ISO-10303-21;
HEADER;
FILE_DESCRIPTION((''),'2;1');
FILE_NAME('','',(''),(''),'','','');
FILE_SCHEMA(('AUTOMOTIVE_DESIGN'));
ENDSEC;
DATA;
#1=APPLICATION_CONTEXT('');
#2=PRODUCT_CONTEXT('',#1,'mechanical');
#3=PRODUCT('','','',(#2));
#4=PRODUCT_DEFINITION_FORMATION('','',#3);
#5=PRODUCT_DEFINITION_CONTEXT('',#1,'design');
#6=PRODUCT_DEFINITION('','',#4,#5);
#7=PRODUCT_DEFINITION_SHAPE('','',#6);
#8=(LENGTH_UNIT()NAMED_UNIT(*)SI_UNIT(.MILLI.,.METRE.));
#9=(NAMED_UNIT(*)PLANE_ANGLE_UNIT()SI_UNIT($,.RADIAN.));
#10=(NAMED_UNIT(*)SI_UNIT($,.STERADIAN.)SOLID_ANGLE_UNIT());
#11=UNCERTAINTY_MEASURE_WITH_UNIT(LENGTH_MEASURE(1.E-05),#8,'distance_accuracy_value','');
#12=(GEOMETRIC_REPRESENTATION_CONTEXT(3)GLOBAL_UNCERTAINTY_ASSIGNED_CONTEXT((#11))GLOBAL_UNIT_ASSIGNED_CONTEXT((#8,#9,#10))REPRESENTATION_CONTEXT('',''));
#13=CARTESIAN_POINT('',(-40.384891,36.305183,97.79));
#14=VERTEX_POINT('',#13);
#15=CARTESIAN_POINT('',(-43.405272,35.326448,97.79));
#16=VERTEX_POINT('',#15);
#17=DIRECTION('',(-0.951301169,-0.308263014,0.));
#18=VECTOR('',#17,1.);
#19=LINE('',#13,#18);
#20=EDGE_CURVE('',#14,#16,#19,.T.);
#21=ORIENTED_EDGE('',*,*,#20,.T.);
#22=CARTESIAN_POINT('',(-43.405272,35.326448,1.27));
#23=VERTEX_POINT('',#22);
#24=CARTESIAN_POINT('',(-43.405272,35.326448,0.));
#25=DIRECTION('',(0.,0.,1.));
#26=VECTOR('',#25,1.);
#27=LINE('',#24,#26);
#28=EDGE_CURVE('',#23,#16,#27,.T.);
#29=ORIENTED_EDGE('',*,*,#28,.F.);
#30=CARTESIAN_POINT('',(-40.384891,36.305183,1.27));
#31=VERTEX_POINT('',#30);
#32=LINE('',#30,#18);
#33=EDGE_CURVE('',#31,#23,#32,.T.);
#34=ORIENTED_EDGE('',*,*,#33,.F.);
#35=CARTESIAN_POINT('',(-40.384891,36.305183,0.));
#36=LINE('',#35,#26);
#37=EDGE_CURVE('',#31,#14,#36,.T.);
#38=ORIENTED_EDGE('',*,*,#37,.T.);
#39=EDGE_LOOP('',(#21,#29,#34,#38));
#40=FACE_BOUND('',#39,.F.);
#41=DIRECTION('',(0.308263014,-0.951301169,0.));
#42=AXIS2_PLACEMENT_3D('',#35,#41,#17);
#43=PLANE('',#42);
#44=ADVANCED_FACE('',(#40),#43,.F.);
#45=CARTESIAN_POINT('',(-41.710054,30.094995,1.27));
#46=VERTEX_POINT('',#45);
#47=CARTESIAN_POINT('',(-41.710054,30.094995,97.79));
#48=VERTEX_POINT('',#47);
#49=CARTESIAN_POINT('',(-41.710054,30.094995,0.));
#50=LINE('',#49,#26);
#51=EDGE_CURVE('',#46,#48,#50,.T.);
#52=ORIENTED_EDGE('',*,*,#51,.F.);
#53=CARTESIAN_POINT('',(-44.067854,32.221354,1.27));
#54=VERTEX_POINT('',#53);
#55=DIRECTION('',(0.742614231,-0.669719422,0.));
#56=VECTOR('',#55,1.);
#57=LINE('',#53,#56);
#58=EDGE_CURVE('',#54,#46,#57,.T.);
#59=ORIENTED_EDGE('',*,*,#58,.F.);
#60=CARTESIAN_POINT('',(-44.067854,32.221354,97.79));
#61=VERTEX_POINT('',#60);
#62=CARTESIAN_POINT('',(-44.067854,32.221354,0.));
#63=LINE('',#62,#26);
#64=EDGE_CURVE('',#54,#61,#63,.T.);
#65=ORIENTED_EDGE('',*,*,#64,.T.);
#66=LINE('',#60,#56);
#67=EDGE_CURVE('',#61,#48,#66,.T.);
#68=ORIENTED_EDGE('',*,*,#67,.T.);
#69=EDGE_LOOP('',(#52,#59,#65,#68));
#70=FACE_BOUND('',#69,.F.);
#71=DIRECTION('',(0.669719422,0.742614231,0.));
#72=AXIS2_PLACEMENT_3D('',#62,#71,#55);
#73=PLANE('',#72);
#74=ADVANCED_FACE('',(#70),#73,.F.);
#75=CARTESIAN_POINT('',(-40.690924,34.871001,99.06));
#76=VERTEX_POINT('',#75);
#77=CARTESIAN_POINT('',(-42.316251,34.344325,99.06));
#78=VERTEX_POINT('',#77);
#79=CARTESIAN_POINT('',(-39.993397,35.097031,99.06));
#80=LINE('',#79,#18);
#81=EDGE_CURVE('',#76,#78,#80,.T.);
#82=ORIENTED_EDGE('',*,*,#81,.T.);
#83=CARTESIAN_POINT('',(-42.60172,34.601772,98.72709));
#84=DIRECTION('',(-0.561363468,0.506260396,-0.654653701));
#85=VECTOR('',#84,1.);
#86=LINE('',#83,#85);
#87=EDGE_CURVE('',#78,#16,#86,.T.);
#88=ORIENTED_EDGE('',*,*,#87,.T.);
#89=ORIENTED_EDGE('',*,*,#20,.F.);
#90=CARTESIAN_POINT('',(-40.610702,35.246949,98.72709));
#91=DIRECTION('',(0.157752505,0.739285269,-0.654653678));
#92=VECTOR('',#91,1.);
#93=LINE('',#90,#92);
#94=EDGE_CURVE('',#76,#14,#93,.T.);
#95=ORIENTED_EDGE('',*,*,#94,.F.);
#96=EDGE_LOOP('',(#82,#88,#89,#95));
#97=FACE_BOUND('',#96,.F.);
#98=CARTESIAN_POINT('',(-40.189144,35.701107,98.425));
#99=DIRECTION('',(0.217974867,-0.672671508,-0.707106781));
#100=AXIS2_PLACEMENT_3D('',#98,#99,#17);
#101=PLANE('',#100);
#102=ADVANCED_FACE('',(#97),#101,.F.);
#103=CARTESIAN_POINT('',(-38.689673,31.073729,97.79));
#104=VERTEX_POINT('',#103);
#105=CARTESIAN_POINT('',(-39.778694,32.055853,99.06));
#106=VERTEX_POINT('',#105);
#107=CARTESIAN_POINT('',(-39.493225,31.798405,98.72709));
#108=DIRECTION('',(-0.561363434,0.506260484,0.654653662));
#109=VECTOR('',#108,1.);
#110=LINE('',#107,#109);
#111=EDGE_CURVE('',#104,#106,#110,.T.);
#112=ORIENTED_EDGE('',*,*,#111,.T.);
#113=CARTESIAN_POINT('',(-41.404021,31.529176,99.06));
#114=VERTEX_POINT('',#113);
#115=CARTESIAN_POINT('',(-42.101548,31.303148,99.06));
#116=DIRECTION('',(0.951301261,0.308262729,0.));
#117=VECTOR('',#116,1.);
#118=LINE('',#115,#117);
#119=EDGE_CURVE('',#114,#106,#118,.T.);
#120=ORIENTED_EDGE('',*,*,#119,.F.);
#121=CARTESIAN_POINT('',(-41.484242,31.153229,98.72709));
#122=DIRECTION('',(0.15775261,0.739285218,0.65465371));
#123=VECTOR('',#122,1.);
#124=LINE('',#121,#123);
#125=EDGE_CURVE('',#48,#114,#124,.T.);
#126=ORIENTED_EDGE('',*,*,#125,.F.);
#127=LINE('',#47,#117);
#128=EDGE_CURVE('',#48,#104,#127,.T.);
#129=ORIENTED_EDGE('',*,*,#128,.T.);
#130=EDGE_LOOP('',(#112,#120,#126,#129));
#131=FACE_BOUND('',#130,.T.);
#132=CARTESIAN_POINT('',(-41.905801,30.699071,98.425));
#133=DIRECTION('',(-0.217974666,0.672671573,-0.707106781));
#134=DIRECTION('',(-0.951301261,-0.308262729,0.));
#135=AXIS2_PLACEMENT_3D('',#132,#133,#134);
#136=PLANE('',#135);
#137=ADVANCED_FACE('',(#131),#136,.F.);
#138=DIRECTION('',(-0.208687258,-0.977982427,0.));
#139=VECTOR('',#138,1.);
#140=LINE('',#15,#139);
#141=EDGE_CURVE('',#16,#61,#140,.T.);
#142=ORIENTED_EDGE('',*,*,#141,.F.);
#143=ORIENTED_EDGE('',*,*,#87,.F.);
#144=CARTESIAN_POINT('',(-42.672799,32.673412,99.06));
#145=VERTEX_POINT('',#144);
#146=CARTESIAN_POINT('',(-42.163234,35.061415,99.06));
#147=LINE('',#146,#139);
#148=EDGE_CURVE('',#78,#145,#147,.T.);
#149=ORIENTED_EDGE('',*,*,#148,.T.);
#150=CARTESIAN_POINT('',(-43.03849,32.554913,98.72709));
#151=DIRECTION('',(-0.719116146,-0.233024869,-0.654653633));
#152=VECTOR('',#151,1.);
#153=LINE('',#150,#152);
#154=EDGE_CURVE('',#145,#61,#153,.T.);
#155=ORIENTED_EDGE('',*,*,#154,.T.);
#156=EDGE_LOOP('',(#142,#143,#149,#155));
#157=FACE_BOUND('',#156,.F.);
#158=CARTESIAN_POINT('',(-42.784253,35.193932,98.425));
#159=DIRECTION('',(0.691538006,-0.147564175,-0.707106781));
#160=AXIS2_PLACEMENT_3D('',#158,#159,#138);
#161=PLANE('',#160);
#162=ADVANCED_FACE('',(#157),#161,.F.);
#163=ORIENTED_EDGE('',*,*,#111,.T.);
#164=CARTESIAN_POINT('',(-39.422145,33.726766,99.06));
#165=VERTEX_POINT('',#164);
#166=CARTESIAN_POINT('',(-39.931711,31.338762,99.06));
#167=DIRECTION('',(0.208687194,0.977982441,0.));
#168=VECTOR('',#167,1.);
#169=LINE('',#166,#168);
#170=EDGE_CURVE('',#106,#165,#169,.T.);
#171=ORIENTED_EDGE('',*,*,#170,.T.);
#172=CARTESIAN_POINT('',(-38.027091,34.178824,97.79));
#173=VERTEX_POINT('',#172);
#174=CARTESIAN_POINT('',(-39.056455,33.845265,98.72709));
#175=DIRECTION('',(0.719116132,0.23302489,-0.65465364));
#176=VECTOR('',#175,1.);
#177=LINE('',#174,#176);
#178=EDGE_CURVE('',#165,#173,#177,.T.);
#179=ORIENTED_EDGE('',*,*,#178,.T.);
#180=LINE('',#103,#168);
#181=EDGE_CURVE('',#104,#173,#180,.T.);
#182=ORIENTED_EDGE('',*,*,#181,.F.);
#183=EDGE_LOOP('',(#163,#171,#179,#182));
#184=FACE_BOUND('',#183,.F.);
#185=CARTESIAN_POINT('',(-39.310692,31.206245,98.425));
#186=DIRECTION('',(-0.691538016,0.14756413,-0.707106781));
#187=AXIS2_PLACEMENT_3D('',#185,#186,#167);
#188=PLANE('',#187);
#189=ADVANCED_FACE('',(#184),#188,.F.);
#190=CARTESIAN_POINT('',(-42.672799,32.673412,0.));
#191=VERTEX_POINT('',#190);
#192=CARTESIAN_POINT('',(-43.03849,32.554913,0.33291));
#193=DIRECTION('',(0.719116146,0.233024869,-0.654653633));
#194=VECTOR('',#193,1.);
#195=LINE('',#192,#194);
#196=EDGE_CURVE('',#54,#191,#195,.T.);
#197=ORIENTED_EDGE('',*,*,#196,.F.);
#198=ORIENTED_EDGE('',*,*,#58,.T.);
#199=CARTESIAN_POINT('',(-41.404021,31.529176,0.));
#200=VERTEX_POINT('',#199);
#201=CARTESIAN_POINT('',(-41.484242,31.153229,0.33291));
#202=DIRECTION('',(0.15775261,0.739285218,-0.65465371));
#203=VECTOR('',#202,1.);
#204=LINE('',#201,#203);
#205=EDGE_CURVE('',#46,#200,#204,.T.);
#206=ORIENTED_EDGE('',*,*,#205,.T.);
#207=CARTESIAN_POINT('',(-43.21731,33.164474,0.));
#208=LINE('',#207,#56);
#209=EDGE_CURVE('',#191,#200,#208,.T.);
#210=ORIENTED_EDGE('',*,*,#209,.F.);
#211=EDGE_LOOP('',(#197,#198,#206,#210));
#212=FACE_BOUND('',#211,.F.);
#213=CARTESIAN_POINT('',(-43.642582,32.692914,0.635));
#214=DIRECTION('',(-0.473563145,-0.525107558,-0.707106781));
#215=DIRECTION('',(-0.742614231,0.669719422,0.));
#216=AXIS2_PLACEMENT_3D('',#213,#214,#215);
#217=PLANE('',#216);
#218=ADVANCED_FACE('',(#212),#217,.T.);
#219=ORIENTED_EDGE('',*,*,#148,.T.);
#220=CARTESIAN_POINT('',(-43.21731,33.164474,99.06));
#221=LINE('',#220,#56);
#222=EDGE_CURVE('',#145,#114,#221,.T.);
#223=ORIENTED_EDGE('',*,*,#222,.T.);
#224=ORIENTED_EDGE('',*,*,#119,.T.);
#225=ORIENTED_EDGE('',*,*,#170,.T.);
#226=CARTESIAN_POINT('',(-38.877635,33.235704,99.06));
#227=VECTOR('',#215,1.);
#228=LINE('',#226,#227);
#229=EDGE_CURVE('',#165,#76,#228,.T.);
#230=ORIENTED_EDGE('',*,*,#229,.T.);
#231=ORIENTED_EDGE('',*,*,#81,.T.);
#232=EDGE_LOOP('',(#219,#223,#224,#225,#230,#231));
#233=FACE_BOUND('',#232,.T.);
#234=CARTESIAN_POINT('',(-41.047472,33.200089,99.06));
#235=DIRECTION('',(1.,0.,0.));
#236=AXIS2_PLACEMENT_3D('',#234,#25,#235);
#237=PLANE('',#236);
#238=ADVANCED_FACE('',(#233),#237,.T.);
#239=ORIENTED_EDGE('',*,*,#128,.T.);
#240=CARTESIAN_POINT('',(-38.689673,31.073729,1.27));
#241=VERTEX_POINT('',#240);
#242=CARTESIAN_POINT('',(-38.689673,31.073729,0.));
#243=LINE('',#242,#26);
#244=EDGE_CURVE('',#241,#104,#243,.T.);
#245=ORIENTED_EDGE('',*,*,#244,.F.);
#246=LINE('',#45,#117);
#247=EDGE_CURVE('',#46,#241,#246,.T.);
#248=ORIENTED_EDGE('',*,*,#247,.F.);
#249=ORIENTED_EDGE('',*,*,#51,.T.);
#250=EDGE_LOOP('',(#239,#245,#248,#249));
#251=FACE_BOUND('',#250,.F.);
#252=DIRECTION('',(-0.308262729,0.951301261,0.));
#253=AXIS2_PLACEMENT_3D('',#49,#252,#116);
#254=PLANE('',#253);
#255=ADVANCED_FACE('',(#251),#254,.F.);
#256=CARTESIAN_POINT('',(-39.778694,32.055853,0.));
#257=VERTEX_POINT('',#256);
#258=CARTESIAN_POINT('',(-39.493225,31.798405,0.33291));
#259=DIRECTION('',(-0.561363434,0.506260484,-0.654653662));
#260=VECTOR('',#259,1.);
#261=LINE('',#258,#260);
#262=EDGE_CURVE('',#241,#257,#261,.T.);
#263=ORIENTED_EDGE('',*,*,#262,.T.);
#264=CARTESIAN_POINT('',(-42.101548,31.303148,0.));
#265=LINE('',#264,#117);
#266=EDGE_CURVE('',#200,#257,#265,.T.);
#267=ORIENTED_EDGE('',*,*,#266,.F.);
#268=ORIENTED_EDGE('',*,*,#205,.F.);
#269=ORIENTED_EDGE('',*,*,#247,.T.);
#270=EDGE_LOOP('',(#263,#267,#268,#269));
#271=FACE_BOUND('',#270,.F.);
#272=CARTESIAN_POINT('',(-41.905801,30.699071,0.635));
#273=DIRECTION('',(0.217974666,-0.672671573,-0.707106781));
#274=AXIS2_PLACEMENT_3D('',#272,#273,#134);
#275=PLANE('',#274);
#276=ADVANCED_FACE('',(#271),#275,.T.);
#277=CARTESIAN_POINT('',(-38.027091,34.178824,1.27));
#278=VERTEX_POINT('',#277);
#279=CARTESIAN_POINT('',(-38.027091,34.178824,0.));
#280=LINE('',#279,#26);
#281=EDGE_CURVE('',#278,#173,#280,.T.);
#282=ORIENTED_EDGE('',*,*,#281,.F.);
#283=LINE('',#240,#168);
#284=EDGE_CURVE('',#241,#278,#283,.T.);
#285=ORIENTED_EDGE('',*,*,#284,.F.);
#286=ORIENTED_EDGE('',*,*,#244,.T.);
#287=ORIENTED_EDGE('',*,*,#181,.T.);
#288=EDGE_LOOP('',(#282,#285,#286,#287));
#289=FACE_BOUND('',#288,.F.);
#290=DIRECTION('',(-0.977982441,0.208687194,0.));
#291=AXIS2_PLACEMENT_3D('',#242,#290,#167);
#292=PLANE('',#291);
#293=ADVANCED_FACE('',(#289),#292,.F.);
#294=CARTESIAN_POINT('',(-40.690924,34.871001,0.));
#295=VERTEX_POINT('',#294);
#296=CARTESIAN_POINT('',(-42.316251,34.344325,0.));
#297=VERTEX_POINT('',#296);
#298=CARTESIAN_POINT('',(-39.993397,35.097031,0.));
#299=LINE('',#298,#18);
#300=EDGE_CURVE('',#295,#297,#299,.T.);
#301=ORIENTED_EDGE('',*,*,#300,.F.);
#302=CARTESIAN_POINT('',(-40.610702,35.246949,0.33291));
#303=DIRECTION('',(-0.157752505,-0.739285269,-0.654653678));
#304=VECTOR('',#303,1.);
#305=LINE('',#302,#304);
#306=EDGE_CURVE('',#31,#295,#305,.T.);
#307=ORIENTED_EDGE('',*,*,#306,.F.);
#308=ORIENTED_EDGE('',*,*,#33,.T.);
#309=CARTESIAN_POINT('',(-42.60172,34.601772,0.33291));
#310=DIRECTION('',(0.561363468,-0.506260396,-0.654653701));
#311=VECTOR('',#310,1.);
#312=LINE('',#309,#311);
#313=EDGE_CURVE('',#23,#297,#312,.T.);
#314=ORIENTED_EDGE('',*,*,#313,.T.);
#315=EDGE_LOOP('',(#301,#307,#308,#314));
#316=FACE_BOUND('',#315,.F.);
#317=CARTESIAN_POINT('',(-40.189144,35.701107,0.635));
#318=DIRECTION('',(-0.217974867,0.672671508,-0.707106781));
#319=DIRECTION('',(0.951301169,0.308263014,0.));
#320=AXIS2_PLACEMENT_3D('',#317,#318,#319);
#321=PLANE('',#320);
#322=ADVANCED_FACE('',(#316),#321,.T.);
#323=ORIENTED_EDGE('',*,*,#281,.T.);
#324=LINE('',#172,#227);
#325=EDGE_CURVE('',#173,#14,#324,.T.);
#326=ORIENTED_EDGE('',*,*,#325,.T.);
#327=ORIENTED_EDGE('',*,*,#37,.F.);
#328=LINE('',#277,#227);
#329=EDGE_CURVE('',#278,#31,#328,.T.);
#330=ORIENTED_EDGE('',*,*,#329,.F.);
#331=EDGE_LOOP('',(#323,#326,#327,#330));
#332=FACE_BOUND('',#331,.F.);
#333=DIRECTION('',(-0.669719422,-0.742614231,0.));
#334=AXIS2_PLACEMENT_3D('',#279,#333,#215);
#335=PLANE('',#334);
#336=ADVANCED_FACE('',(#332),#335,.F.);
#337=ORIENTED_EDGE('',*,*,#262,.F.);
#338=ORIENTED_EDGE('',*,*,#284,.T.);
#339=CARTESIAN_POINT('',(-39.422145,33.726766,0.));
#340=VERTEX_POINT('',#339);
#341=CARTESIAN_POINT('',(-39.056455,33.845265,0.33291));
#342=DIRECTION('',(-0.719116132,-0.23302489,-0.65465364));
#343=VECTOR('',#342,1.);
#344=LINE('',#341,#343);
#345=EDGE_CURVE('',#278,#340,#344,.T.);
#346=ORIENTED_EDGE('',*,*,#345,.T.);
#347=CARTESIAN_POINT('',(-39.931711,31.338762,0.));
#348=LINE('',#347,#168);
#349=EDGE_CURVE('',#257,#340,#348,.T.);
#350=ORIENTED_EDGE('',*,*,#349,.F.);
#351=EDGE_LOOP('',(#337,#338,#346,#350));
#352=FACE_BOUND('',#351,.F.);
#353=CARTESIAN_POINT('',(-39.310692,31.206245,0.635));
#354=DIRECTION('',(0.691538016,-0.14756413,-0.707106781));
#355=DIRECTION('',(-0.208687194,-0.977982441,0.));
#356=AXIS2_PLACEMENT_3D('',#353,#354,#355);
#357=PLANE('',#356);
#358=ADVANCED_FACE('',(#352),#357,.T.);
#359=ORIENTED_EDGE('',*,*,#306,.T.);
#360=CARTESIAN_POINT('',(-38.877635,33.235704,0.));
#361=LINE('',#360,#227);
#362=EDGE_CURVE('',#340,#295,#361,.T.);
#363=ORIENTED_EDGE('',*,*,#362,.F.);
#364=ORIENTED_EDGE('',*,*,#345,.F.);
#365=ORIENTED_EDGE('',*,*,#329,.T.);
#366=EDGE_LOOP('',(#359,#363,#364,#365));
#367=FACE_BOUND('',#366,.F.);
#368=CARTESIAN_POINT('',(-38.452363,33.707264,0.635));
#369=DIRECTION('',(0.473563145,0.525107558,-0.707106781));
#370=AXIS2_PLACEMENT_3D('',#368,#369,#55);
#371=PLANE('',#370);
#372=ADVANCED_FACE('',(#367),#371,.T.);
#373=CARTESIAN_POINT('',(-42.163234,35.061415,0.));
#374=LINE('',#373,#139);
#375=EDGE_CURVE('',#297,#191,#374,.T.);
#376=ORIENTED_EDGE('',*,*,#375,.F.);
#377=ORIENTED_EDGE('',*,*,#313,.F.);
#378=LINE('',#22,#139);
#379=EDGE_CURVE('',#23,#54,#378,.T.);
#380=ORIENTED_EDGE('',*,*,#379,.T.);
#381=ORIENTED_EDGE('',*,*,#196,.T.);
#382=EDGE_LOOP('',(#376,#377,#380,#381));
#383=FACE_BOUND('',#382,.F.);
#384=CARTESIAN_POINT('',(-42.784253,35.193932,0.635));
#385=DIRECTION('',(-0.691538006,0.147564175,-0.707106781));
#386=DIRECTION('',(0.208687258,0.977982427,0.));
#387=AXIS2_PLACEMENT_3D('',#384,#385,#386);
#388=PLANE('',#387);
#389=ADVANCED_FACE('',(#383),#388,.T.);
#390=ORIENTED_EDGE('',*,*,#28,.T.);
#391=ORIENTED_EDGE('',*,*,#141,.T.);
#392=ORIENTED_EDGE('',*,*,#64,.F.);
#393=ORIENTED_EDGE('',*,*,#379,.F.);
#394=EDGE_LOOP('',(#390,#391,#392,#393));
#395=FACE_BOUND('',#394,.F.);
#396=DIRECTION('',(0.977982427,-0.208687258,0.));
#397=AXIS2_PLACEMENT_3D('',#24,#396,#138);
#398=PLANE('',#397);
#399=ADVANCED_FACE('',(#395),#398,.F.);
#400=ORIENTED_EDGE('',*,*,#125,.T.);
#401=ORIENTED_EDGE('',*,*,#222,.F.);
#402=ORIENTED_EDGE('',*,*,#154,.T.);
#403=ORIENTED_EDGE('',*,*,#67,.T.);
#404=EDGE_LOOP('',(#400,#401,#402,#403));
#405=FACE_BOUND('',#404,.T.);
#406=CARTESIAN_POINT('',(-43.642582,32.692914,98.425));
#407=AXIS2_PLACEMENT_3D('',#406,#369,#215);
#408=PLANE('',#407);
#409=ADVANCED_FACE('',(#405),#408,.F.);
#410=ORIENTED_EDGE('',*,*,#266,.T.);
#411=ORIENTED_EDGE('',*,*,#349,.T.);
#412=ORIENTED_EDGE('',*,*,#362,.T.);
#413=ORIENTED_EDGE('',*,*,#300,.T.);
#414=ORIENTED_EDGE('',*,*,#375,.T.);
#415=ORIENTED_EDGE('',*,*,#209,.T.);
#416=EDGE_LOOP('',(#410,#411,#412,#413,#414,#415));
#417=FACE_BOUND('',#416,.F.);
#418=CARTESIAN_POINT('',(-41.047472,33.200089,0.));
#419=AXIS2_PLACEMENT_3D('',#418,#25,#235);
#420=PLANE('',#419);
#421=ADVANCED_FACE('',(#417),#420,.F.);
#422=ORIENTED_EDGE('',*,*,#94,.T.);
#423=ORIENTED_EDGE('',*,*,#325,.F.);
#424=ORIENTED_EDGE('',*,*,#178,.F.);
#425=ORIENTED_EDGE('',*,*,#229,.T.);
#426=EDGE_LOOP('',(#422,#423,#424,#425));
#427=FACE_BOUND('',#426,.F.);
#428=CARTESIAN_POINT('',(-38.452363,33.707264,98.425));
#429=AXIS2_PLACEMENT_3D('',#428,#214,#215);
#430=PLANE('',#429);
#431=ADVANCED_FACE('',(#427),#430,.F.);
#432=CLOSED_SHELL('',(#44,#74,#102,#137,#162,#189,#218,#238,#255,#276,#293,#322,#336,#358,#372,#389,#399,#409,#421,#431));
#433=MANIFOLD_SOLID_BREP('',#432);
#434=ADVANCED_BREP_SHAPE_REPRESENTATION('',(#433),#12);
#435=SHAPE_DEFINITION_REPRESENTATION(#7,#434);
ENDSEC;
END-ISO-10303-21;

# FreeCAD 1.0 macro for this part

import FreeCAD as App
import Part
import Sketcher
from FreeCAD import Vector
Q = App.Units.Quantity


def edges_at(feature, points):
    """Names of the edges that pass closest to the given points."""
    edges = feature.Shape.Edges
    near = lambda p: min(range(len(edges)), key=lambda i: edges[i].distToShape(Part.Vertex(*p))[0])
    return sorted({f"Edge{near(p) + 1}" for p in points})

doc = App.newDocument("Part")
body = doc.addObject("PartDesign::Body", "Body")

sketch1 = body.newObject("Sketcher::SketchObject", "Sketch")
sketch1.AttachmentSupport = (doc.getObject("XY_Plane"), [""])
sketch1.MapMode = "FlatFace"
sketch1.addGeometry(Part.LineSegment(Vector(-41.7, 30.1, 0), Vector(-38.7, 31.1, 0)), False)
sketch1.addGeometry(Part.LineSegment(Vector(-38.7, 31.1, 0), Vector(-38, 34.2, 0)), False)
sketch1.addGeometry(Part.LineSegment(Vector(-38, 34.2, 0), Vector(-40.4, 36.3, 0)), False)
sketch1.addGeometry(Part.LineSegment(Vector(-40.4, 36.3, 0), Vector(-43.4, 35.3, 0)), False)
sketch1.addGeometry(Part.LineSegment(Vector(-43.4, 35.3, 0), Vector(-44.1, 32.2, 0)), False)
sketch1.addGeometry(Part.LineSegment(Vector(-44.1, 32.2, 0), Vector(-41.7, 30.1, 0)), False)
sketch1.addConstraint(Sketcher.Constraint("Coincident", 0, 2, 1, 1))
sketch1.addConstraint(Sketcher.Constraint("Coincident", 1, 2, 2, 1))
sketch1.addConstraint(Sketcher.Constraint("Coincident", 2, 2, 3, 1))
sketch1.addConstraint(Sketcher.Constraint("Coincident", 3, 2, 4, 1))
sketch1.addConstraint(Sketcher.Constraint("Coincident", 4, 2, 5, 1))
sketch1.addConstraint(Sketcher.Constraint("Coincident", 5, 2, 0, 1))
sketch1.addConstraint(Sketcher.Constraint("Parallel", 0, 3))
sketch1.addConstraint(Sketcher.Constraint("Parallel", 1, 4))
sketch1.addConstraint(Sketcher.Constraint("Parallel", 2, 5))
sketch1.addConstraint(Sketcher.Constraint("Equal", 0, 1))
sketch1.addConstraint(Sketcher.Constraint("Equal", 1, 2))
sketch1.addConstraint(Sketcher.Constraint("Equal", 2, 3))
sketch1.addConstraint(Sketcher.Constraint("Distance", 0, Q("0.125 in")))
sketch1.addConstraint(Sketcher.Constraint("DistanceX", 2, 2, 1, 2, 2.3578))
sketch1.addConstraint(Sketcher.Constraint("DistanceX", 3, 2, 0, 2, 4.715599))
sketch1.addConstraint(Sketcher.Constraint("DistanceY", -1, 1, 0, 2, 31.073729))
sketch1.addConstraint(Sketcher.Constraint("DistanceX", 1, 2, -1, 1, 38.027091))
sketch1.addConstraint(Sketcher.Constraint("DistanceX", 3, 2, -1, 1, 43.405272))
pad1 = body.newObject("PartDesign::Pad", "Pad")
pad1.Profile = sketch1
pad1.Length = Q("3.9 in")
doc.recompute()

chamfer = body.newObject("PartDesign::Chamfer", "Chamfer")
chamfer.Base = (pad1, edges_at(pad1, [
    (-40.2, 30.584, 0),
    (-38.358, 32.626, 0),
    (-39.206, 35.242, 0),
    (-41.895, 35.816, 0),
    (-43.737, 33.774, 0),
    (-42.889, 31.158, 0),
]))
chamfer.Size = Q("0.05 in")
doc.recompute()

chamfer2 = body.newObject("PartDesign::Chamfer", "Chamfer001")
chamfer2.Base = (chamfer, edges_at(chamfer, [
    (-40.2, 30.584, 99.06),
    (-38.358, 32.626, 99.06),
    (-39.206, 35.242, 99.06),
    (-41.895, 35.816, 99.06),
    (-43.737, 33.774, 99.06),
    (-42.889, 31.158, 99.06),
]))
chamfer2.Size = Q("0.05 in")

doc.recompute()
